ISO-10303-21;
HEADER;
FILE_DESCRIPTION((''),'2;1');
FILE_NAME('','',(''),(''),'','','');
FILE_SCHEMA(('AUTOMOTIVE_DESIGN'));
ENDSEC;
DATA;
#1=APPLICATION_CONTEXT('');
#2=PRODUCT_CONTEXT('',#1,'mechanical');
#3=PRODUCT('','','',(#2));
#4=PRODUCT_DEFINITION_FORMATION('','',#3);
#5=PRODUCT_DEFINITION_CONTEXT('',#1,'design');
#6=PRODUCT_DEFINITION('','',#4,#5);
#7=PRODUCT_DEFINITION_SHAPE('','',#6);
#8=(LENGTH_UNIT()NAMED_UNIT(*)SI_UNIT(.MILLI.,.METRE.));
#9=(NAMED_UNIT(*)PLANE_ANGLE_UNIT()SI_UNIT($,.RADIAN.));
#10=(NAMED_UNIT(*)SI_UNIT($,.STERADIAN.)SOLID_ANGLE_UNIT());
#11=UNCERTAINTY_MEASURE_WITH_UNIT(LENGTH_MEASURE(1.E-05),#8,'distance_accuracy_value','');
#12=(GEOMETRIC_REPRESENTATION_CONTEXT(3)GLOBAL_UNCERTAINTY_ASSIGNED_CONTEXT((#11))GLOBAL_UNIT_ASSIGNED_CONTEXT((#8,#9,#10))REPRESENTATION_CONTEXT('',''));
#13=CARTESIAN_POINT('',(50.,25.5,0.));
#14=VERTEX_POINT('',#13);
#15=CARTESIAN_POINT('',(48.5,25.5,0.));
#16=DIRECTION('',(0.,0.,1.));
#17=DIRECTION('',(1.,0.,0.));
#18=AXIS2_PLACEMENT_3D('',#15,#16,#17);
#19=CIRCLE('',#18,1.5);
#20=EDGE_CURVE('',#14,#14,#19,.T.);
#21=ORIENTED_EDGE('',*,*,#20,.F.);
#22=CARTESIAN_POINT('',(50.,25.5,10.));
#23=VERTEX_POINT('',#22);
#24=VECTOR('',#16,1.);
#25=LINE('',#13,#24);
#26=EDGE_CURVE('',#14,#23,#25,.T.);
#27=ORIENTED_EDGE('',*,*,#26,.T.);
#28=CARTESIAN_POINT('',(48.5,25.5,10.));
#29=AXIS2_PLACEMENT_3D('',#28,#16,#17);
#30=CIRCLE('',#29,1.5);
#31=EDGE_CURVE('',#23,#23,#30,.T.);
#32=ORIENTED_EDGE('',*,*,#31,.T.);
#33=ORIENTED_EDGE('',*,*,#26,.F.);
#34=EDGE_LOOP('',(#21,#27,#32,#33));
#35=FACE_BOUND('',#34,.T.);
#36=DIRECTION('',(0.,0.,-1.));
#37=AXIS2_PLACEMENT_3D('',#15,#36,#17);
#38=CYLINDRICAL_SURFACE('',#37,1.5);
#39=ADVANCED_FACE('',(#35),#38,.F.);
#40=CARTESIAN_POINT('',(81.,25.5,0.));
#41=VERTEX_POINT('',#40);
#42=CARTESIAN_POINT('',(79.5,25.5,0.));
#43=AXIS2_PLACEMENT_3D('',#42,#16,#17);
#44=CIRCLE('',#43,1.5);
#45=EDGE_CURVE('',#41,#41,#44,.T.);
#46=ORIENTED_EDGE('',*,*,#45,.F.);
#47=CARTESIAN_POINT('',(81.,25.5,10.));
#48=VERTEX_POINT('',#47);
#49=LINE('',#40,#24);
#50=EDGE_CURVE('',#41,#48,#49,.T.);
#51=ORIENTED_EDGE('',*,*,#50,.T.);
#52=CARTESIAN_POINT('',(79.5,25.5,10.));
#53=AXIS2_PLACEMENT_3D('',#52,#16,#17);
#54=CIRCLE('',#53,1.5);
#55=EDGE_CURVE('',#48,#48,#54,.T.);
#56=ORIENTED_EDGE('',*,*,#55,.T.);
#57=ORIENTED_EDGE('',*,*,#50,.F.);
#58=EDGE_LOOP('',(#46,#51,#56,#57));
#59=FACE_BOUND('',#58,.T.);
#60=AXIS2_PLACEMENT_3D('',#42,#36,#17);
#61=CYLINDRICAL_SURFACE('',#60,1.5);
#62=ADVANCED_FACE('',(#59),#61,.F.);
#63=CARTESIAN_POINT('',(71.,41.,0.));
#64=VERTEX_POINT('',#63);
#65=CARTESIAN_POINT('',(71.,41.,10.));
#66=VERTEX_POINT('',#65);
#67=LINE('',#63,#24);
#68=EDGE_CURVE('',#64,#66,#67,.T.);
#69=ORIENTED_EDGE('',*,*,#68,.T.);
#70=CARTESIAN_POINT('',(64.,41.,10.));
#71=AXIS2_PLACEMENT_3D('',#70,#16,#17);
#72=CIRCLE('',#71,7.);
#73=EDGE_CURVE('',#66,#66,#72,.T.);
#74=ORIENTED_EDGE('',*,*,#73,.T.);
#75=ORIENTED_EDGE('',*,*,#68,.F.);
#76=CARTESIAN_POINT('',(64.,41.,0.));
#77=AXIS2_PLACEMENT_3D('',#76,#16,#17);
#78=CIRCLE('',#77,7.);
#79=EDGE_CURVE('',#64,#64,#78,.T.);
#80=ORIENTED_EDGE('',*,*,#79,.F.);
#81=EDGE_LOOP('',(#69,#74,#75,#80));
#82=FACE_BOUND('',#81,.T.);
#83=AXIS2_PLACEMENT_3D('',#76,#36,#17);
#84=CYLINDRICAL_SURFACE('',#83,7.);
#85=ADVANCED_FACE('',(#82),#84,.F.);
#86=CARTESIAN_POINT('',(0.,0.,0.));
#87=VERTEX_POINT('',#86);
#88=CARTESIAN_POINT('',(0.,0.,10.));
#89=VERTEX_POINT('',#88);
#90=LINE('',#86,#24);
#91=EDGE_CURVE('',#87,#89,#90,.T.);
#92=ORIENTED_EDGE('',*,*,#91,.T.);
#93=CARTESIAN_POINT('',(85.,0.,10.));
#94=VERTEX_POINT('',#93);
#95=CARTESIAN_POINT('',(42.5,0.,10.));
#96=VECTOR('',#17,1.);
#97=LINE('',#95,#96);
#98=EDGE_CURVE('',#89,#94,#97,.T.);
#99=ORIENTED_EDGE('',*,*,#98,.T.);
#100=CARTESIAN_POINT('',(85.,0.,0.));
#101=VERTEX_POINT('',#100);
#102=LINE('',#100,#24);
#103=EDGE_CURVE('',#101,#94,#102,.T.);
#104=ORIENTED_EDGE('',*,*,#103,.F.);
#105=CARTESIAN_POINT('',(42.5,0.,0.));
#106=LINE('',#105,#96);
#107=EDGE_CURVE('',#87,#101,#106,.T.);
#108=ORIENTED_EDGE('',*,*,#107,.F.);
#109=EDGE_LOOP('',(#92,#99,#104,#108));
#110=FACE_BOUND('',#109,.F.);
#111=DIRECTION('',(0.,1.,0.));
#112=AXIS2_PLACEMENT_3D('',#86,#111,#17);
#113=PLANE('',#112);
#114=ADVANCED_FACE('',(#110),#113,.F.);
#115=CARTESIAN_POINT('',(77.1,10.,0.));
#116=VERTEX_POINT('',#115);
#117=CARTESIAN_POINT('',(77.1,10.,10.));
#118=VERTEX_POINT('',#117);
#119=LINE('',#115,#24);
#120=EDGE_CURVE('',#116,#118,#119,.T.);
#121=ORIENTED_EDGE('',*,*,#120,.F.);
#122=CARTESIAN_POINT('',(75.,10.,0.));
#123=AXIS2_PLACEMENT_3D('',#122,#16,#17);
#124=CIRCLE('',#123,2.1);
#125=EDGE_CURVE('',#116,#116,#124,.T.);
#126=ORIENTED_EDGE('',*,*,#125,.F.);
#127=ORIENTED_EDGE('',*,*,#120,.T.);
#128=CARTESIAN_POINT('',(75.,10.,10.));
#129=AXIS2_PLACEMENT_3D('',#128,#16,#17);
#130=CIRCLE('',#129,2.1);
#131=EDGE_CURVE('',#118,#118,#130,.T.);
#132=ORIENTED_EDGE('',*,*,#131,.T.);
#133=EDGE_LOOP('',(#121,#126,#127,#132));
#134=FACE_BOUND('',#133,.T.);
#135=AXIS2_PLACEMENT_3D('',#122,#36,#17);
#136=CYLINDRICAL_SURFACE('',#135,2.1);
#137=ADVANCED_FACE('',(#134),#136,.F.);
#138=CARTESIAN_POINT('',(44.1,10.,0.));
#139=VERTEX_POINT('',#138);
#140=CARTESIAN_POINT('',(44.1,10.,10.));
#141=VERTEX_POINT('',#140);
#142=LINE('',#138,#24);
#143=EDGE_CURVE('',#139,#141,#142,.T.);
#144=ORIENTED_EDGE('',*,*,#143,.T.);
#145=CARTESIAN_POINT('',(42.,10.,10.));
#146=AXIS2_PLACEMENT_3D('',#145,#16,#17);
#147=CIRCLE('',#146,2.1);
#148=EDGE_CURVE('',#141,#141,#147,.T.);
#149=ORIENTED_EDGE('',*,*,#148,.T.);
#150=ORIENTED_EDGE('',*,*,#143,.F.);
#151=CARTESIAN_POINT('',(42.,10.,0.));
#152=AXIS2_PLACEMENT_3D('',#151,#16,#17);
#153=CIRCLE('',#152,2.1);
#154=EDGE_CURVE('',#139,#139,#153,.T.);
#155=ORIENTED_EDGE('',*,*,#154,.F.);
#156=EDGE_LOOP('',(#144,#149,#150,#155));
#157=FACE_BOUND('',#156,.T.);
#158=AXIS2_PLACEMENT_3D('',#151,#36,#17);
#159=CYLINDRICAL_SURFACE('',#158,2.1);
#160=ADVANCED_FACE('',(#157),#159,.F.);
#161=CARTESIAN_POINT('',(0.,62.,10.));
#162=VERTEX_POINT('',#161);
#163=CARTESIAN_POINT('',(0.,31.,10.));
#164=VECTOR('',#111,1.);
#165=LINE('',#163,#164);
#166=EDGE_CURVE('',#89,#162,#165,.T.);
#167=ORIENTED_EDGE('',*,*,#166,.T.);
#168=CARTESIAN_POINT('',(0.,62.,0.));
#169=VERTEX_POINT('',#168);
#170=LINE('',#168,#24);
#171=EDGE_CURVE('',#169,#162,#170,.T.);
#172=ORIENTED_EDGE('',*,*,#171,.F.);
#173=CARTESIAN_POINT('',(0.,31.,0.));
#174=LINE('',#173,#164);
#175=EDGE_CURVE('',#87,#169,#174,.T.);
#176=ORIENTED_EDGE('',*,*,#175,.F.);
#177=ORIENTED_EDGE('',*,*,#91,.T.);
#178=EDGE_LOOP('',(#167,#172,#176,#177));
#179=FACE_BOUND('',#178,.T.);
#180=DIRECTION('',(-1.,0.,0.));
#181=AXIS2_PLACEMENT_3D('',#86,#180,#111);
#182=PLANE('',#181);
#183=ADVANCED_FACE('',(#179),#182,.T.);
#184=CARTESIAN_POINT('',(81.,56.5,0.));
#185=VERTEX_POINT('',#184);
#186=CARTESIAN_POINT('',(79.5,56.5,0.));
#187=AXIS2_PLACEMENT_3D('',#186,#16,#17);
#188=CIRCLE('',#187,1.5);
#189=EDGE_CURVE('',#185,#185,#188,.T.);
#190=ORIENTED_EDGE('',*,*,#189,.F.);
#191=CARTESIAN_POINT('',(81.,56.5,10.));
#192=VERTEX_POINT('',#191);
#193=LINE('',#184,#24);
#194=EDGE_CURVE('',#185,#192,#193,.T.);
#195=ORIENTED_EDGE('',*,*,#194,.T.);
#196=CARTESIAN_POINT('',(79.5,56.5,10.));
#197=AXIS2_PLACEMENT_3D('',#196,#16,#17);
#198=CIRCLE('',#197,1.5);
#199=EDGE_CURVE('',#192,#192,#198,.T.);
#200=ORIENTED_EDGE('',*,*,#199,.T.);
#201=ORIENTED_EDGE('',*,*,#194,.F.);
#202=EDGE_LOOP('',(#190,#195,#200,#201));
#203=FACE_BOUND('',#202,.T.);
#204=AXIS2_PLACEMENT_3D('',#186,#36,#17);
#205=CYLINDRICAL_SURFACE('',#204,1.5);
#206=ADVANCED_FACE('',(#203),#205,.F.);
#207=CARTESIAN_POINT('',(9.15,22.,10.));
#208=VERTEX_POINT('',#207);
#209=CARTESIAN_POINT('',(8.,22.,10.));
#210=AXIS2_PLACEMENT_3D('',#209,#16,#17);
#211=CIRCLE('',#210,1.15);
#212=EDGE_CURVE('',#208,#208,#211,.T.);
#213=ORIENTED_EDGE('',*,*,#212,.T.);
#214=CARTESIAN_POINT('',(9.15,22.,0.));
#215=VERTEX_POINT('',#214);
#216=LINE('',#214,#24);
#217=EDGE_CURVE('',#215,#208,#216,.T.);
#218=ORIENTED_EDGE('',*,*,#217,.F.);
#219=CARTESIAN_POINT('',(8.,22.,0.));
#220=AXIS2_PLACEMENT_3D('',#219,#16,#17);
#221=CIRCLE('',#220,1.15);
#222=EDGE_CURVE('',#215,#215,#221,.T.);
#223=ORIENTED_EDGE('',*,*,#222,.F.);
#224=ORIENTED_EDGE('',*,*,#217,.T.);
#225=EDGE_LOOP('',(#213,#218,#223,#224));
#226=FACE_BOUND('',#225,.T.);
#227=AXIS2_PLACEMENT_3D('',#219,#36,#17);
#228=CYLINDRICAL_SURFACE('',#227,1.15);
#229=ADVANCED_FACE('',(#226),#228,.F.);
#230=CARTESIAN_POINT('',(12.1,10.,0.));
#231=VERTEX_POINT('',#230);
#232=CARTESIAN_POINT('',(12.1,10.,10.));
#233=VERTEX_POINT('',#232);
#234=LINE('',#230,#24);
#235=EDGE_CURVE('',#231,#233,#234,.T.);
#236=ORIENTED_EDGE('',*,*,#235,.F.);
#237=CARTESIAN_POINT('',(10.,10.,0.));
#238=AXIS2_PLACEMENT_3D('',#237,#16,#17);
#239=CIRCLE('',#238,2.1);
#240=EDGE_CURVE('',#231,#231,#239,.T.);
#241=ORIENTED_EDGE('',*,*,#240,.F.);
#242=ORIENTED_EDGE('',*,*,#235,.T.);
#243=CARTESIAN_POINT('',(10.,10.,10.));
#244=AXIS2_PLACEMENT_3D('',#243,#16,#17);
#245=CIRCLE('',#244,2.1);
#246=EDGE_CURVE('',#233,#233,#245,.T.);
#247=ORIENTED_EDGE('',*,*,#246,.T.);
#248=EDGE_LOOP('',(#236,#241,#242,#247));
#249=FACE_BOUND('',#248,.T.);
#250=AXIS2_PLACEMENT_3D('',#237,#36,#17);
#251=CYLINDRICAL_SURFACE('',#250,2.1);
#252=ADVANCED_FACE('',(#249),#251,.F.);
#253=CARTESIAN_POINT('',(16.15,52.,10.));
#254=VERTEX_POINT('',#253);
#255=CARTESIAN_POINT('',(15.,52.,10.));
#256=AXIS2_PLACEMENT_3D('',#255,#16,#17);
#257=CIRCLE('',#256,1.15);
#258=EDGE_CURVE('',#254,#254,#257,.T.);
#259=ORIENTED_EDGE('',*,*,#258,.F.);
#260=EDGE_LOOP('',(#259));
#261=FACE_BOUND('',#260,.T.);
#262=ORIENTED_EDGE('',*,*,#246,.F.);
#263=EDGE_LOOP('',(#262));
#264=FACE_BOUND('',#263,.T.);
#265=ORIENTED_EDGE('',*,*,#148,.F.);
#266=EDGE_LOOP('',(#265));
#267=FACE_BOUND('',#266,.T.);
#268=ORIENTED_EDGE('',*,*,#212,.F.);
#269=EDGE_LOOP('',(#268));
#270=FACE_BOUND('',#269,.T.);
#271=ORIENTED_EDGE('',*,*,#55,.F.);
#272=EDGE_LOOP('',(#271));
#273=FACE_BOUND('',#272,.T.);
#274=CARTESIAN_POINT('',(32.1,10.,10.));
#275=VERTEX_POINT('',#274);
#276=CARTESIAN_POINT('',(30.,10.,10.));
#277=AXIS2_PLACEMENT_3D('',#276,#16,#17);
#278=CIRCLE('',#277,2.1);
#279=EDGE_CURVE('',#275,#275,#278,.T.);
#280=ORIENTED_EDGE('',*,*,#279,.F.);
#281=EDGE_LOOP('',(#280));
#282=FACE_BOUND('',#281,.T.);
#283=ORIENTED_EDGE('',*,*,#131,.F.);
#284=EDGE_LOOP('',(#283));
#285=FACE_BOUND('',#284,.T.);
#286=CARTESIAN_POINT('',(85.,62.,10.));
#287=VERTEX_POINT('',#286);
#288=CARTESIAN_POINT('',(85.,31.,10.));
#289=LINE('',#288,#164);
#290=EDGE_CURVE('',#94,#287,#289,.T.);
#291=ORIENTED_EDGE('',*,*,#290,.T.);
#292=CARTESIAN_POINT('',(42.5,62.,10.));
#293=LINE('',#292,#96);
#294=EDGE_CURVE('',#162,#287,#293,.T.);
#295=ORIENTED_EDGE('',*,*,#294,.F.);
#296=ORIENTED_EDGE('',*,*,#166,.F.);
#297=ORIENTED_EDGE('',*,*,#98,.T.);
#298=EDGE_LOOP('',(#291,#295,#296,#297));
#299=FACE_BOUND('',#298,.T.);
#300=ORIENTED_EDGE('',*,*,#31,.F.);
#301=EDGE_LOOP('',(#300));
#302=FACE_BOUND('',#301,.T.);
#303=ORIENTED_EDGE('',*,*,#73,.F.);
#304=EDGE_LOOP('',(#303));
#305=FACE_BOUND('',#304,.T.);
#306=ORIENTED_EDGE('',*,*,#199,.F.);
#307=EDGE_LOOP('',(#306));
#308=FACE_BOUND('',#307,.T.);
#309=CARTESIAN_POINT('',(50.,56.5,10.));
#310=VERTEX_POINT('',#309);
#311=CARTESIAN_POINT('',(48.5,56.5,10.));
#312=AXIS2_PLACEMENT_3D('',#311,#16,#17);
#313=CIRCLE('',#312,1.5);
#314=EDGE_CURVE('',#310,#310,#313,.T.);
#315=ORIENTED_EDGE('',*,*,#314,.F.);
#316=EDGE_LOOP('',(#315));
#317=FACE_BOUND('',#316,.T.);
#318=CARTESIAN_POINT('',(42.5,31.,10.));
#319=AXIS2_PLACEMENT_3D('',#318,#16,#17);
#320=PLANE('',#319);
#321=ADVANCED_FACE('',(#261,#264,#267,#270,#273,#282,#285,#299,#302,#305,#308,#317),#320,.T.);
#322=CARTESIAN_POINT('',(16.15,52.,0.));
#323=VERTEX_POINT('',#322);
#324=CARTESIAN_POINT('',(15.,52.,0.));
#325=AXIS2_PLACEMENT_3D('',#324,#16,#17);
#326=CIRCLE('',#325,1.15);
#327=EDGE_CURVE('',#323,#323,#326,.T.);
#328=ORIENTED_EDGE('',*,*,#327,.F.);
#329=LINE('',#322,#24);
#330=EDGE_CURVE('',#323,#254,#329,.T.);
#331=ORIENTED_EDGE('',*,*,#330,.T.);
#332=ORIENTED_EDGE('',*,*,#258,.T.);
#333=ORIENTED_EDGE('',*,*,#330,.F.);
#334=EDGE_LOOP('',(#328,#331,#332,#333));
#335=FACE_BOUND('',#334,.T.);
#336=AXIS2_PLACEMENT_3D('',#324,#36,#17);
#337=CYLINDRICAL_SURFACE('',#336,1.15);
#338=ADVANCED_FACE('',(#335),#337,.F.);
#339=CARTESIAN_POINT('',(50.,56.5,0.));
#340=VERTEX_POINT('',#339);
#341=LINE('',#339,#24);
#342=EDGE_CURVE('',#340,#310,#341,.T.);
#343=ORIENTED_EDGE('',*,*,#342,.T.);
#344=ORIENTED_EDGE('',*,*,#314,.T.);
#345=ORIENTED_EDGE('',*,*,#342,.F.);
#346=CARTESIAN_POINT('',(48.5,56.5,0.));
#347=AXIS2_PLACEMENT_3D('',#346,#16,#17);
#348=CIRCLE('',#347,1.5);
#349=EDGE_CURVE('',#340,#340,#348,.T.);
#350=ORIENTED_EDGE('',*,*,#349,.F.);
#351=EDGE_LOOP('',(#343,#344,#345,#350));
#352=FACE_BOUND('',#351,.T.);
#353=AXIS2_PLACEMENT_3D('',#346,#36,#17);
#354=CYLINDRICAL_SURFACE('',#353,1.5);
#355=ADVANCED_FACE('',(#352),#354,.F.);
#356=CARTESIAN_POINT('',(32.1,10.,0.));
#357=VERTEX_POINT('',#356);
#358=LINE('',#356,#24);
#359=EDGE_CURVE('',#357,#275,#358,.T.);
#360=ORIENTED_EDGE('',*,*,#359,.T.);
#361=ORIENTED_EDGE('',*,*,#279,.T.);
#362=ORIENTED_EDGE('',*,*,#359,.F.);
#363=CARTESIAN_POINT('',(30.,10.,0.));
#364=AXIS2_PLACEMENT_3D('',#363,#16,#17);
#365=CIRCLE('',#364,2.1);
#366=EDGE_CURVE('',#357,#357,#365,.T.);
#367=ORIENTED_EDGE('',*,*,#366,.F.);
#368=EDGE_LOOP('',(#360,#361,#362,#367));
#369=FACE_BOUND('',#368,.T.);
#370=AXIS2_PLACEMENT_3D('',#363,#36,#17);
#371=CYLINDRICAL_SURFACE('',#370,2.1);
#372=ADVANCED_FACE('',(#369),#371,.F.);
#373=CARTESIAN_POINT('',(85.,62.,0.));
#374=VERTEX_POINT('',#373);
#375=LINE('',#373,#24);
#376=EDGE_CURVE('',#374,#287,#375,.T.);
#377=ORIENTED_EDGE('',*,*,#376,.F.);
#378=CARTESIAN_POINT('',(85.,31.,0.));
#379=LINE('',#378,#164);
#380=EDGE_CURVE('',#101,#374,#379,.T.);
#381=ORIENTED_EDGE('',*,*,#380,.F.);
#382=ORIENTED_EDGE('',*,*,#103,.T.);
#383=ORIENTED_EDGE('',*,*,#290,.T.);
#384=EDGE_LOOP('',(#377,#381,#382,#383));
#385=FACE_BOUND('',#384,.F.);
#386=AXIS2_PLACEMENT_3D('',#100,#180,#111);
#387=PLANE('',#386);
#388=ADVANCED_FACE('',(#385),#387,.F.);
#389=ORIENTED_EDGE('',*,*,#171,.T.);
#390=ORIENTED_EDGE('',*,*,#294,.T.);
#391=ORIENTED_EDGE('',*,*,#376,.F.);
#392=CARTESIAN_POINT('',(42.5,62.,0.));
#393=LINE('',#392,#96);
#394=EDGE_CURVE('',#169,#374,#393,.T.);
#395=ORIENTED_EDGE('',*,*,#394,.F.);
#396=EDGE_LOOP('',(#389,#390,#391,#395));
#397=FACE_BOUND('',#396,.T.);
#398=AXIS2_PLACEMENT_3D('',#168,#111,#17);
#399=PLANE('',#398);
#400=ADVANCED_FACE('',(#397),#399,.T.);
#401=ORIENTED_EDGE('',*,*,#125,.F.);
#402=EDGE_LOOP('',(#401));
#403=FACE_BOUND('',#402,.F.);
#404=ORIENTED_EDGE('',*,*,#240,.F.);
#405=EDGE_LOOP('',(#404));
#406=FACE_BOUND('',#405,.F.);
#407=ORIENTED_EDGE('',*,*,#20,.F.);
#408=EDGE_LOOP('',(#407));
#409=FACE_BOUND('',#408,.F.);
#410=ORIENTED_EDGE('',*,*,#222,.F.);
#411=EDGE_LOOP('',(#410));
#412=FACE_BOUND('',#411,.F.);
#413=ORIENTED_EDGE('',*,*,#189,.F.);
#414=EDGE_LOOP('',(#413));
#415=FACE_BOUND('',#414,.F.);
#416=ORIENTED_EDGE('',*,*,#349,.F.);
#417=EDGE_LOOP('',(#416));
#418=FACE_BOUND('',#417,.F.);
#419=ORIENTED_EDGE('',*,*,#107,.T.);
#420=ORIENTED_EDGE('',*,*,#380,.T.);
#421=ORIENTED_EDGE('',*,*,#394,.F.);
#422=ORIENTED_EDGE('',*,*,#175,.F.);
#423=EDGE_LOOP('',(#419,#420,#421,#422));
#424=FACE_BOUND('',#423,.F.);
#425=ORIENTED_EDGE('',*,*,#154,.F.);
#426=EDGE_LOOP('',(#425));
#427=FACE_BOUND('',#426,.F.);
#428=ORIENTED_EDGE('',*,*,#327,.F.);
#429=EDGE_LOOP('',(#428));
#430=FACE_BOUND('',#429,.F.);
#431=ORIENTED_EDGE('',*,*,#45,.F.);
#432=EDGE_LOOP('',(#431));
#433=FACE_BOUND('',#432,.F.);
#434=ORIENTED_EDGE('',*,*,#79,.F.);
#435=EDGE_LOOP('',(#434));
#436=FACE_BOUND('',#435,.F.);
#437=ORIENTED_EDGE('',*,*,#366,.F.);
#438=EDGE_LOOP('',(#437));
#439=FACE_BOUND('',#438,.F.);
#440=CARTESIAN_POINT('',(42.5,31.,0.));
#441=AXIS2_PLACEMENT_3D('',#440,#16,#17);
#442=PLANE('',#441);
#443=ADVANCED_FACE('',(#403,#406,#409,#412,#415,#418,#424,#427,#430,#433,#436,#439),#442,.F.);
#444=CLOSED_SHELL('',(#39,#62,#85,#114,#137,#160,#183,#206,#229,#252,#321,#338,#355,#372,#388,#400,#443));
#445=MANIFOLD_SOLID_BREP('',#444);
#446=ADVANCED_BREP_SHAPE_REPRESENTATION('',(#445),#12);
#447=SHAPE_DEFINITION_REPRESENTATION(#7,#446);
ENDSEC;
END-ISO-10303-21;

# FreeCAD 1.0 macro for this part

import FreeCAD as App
import Part
import Sketcher

V = App.Vector

doc = App.newDocument("Part")
body = doc.addObject("PartDesign::Body", "Body")

# Sketch on XY plane
sketch1 = body.newObject("Sketcher::SketchObject", "Sketch")
sketch1.AttachmentSupport = (doc.getObject("XY_Plane"), [""])
sketch1.MapMode = "FlatFace"
sketch1.addGeometry([
    Part.LineSegment(V(0, 62, 0), V(0, 0, 0)),  # 0
    Part.LineSegment(V(0, 0, 0), V(85, 0, 0)),  # 1
    Part.LineSegment(V(85, 0, 0), V(85, 62, 0)),  # 2
    Part.LineSegment(V(85, 62, 0), V(0, 62, 0)),  # 3
    Part.Circle(V(10, 10, 0), V(0, 0, 1), 2.1),  # 4
    Part.Circle(V(30, 10, 0), V(0, 0, 1), 2.1),  # 5
    Part.Circle(V(42, 10, 0), V(0, 0, 1), 2.1),  # 6
    Part.Circle(V(8, 22, 0), V(0, 0, 1), 1.15),  # 7
    Part.Circle(V(75, 10, 0), V(0, 0, 1), 2.1),  # 8
    Part.Circle(V(48.5, 25.5, 0), V(0, 0, 1), 1.5),  # 9
    Part.Circle(V(79.5, 25.5, 0), V(0, 0, 1), 1.5),  # 10
    Part.Circle(V(15, 52, 0), V(0, 0, 1), 1.15),  # 11
    Part.Circle(V(64, 41, 0), V(0, 0, 1), 7),  # 12
    Part.Circle(V(48.5, 56.5, 0), V(0, 0, 1), 1.5),  # 13
    Part.Circle(V(79.5, 56.5, 0), V(0, 0, 1), 1.5),  # 14
], False)
sketch1.addConstraint([
    Sketcher.Constraint("Coincident", 0, 2, 1, 1),
    Sketcher.Constraint("Coincident", 1, 2, 2, 1),
    Sketcher.Constraint("Coincident", 2, 2, 3, 1),
    Sketcher.Constraint("Coincident", 3, 2, 0, 1),
    Sketcher.Constraint("Vertical", 0),
    Sketcher.Constraint("Horizontal", 1),
    Sketcher.Constraint("Vertical", 2),
    Sketcher.Constraint("Horizontal", 3),
    Sketcher.Constraint("Coincident", 0, 2, -1, 1),
    Sketcher.Constraint("Equal", 4, 5),
    Sketcher.Constraint("Equal", 5, 6),
    Sketcher.Constraint("Equal", 6, 8),
    Sketcher.Constraint("Equal", 9, 10),
    Sketcher.Constraint("Equal", 7, 11),
    Sketcher.Constraint("Equal", 10, 13),
    Sketcher.Constraint("Equal", 13, 14),
    Sketcher.Constraint("Horizontal", 4, 3, 5, 3),
    Sketcher.Constraint("Horizontal", 5, 3, 6, 3),
    Sketcher.Constraint("Horizontal", 6, 3, 8, 3),
    Sketcher.Constraint("Horizontal", 9, 3, 10, 3),
    Sketcher.Constraint("Horizontal", 13, 3, 14, 3),
    Sketcher.Constraint("Vertical", 9, 3, 13, 3),
    Sketcher.Constraint("Vertical", 10, 3, 14, 3),
    Sketcher.Constraint("Diameter", 9, 3.0),
    Sketcher.Constraint("Diameter", 12, 14.0),
    Sketcher.Constraint("Diameter", 4, 4.2),
    Sketcher.Constraint("Diameter", 7, 2.3),
    Sketcher.Constraint("DistanceX", 1, 1, 1, 2, 85.0),
    Sketcher.Constraint("DistanceY", 0, 2, 0, 1, 62.0),
    Sketcher.Constraint("DistanceX", -1, 1, 4, 3, 10.0),
    Sketcher.Constraint("DistanceY", -1, 1, 4, 3, 10.0),
    Sketcher.Constraint("DistanceX", -1, 1, 5, 3, 30.0),
    Sketcher.Constraint("DistanceX", -1, 1, 6, 3, 42.0),
    Sketcher.Constraint("DistanceX", -1, 1, 7, 3, 8.0),
    Sketcher.Constraint("DistanceY", -1, 1, 7, 3, 22.0),
    Sketcher.Constraint("DistanceX", -1, 1, 8, 3, 75.0),
    Sketcher.Constraint("DistanceX", -1, 1, 11, 3, 15.0),
    Sketcher.Constraint("DistanceY", -1, 1, 11, 3, 52.0),
    Sketcher.Constraint("DistanceX", -1, 1, 12, 3, 64.0),
    Sketcher.Constraint("DistanceY", -1, 1, 12, 3, 41.0),
    Sketcher.Constraint("DistanceX", 9, 3, 10, 3, 31.0),
    Sketcher.Constraint("DistanceY", 9, 3, 13, 3, 31.0),
    Sketcher.Constraint("DistanceX", -1, 1, 9, 3, 48.5),
    Sketcher.Constraint("DistanceY", -1, 1, 9, 3, 25.5),
])
pad1 = body.newObject("PartDesign::Pad", "Pad")
pad1.Profile = sketch1
pad1.Length = 10

doc.recompute()
